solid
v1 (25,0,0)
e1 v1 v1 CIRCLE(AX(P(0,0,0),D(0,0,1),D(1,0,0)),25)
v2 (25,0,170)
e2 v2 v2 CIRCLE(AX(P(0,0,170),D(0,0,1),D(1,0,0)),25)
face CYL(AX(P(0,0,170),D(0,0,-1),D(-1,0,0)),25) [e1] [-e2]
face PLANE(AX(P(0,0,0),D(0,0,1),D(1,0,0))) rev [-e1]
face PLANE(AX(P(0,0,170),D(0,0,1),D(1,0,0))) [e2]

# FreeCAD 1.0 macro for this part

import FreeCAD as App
import Part
import Sketcher

V = App.Vector

doc = App.newDocument("Part")
body = doc.addObject("PartDesign::Body", "Body")

# Sketch on XY plane
sketch1 = doc.addObject("Sketcher::SketchObject", "Sketch")
body.addObject(sketch1)
sketch1.AttachmentSupport = (doc.XY_Plane, [""])
sketch1.MapMode = "FlatFace"
sketch1.addGeometry(Part.Circle(V(0, 0, 0), V(0, 0, 1), 25), False)
sketch1.addConstraint(Sketcher.Constraint("Coincident", 0, 3, -1, 1))
sketch1.addConstraint(Sketcher.Constraint("Diameter", 0, 50.0))
pad1 = doc.addObject("PartDesign::Pad", "Pad")
body.addObject(pad1)
pad1.Profile = sketch1
pad1.Length = 170

doc.recompute()
